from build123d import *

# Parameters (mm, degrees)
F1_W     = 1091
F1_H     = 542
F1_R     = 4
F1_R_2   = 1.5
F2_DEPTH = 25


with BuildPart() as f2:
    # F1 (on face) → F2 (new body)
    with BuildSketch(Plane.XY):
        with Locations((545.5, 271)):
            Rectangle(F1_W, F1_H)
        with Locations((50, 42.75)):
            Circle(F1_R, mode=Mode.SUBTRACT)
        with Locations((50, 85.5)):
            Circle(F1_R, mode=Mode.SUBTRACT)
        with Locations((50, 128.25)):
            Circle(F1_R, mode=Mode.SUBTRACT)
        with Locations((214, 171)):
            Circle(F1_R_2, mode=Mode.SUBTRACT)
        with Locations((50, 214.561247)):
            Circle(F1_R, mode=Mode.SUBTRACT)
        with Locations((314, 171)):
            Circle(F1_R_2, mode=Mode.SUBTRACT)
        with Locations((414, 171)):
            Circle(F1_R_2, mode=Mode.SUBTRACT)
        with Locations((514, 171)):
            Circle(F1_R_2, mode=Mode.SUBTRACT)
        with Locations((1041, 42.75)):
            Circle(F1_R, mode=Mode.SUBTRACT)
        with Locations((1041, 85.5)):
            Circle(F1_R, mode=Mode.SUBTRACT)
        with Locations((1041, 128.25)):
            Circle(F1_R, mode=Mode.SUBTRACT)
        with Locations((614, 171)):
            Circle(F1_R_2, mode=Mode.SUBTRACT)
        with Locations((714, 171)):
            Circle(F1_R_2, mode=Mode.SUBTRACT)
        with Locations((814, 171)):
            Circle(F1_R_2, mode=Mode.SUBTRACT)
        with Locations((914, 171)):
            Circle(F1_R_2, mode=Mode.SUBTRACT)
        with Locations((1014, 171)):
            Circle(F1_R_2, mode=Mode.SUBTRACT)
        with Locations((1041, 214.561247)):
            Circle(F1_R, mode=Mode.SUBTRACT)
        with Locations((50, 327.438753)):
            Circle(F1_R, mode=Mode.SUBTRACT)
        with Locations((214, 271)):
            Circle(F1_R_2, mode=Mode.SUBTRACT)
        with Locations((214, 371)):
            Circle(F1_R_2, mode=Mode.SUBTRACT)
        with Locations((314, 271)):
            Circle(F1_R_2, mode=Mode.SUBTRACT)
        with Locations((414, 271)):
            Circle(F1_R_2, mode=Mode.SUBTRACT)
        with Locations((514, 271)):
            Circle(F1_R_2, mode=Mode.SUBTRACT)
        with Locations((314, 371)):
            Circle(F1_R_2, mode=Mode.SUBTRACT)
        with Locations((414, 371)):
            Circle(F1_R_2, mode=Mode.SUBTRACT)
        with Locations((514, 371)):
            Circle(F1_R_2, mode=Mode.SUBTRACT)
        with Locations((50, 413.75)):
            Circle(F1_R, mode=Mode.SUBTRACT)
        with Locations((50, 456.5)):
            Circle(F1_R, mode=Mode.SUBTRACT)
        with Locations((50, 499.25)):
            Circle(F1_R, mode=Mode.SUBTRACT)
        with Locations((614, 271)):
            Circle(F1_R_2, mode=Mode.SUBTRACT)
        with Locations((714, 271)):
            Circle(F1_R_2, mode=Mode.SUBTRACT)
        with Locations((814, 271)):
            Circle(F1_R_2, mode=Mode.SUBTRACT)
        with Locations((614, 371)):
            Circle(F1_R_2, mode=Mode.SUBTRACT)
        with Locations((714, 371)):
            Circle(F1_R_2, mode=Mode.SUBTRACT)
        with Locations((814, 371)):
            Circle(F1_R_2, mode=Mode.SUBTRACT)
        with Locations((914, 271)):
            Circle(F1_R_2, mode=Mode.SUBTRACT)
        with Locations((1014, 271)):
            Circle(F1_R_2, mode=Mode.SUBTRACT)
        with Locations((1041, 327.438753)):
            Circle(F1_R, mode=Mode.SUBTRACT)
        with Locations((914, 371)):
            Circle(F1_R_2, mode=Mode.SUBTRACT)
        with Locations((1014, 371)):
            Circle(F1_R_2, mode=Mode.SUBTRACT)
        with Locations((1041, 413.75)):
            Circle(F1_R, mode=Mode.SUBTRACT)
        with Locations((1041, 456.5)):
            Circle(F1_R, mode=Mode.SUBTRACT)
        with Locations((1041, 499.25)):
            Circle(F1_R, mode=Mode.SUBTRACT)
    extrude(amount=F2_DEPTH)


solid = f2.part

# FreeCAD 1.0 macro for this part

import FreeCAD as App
import Part
import Sketcher
from FreeCAD import Vector
Q = App.Units.Quantity


def add_polygon(sketch, points):
    """Adds a closed chain of lines whose ends are joined by coincident constraints."""
    first, n = sketch.GeometryCount, len(points)
    for a, b in zip(points, points[1:] + points[:1]):
        sketch.addGeometry(Part.LineSegment(App.Vector(*a, 0), App.Vector(*b, 0)), False)
    for i in range(n):
        sketch.addConstraint(Sketcher.Constraint("Coincident", first + i, 2, first + (i + 1) % n, 1))

doc = App.newDocument("Part")
params = doc.addObject("Spreadsheet::Sheet", "Params")
for row, (alias, value) in enumerate([
    ("sketch1_diameter", "8 mm"),
    ("sketch1_diameter2", "3 mm"),
    ("sketch1_width", "1091 mm"),
    ("sketch1_height", "542 mm"),
    ("pad1_length", "25 mm"),
], start=1):
    params.set(f"A{row}", alias)
    params.set(f"B{row}", "=" + value)
    params.setAlias(f"B{row}", alias)

body = doc.addObject("PartDesign::Body", "Body")

# Sketch on XY plane
sketch1 = doc.addObject("Sketcher::SketchObject", "Sketch")
body.addObject(sketch1)
sketch1.AttachmentSupport = (doc.XY_Plane, [""])
sketch1.MapMode = "FlatFace"
add_polygon(sketch1, [(0, 542), (0, 0), (1091, 0), (1091, 542)])  # lines 0-3
sketch1.addGeometry(Part.Circle(Vector(50, 42.75, 0), Vector(0, 0, 1), 4), False)  # 4
sketch1.addGeometry(Part.Circle(Vector(50, 85.5, 0), Vector(0, 0, 1), 4), False)  # 5
sketch1.addGeometry(Part.Circle(Vector(50, 128.25, 0), Vector(0, 0, 1), 4), False)  # 6
sketch1.addGeometry(Part.Circle(Vector(214, 171, 0), Vector(0, 0, 1), 1.5), False)  # 7
sketch1.addGeometry(Part.Circle(Vector(50, 214.561247, 0), Vector(0, 0, 1), 4), False)  # 8
sketch1.addGeometry(Part.Circle(Vector(214, 271, 0), Vector(0, 0, 1), 1.5), False)  # 9
sketch1.addGeometry(Part.Circle(Vector(314, 171, 0), Vector(0, 0, 1), 1.5), False)  # 10
sketch1.addGeometry(Part.Circle(Vector(414, 171, 0), Vector(0, 0, 1), 1.5), False)  # 11
sketch1.addGeometry(Part.Circle(Vector(514, 171, 0), Vector(0, 0, 1), 1.5), False)  # 12
sketch1.addGeometry(Part.Circle(Vector(314, 271, 0), Vector(0, 0, 1), 1.5), False)  # 13
sketch1.addGeometry(Part.Circle(Vector(414, 271, 0), Vector(0, 0, 1), 1.5), False)  # 14
sketch1.addGeometry(Part.Circle(Vector(514, 271, 0), Vector(0, 0, 1), 1.5), False)  # 15
sketch1.addGeometry(Part.Circle(Vector(1041, 42.75, 0), Vector(0, 0, 1), 4), False)  # 16
sketch1.addGeometry(Part.Circle(Vector(1041, 85.5, 0), Vector(0, 0, 1), 4), False)  # 17
sketch1.addGeometry(Part.Circle(Vector(1041, 128.25, 0), Vector(0, 0, 1), 4), False)  # 18
sketch1.addGeometry(Part.Circle(Vector(614, 171, 0), Vector(0, 0, 1), 1.5), False)  # 19
sketch1.addGeometry(Part.Circle(Vector(714, 171, 0), Vector(0, 0, 1), 1.5), False)  # 20
sketch1.addGeometry(Part.Circle(Vector(614, 271, 0), Vector(0, 0, 1), 1.5), False)  # 21
sketch1.addGeometry(Part.Circle(Vector(714, 271, 0), Vector(0, 0, 1), 1.5), False)  # 22
sketch1.addGeometry(Part.Circle(Vector(814, 171, 0), Vector(0, 0, 1), 1.5), False)  # 23
sketch1.addGeometry(Part.Circle(Vector(914, 171, 0), Vector(0, 0, 1), 1.5), False)  # 24
sketch1.addGeometry(Part.Circle(Vector(1014, 171, 0), Vector(0, 0, 1), 1.5), False)  # 25
sketch1.addGeometry(Part.Circle(Vector(814, 271, 0), Vector(0, 0, 1), 1.5), False)  # 26
sketch1.addGeometry(Part.Circle(Vector(914, 271, 0), Vector(0, 0, 1), 1.5), False)  # 27
sketch1.addGeometry(Part.Circle(Vector(1041, 214.561247, 0), Vector(0, 0, 1), 4), False)  # 28
sketch1.addGeometry(Part.Circle(Vector(1014, 271, 0), Vector(0, 0, 1), 1.5), False)  # 29
sketch1.addGeometry(Part.Circle(Vector(50, 327.438753, 0), Vector(0, 0, 1), 4), False)  # 30
sketch1.addGeometry(Part.Circle(Vector(214, 371, 0), Vector(0, 0, 1), 1.5), False)  # 31
sketch1.addGeometry(Part.Circle(Vector(314, 371, 0), Vector(0, 0, 1), 1.5), False)  # 32
sketch1.addGeometry(Part.Circle(Vector(414, 371, 0), Vector(0, 0, 1), 1.5), False)  # 33
sketch1.addGeometry(Part.Circle(Vector(514, 371, 0), Vector(0, 0, 1), 1.5), False)  # 34
sketch1.addGeometry(Part.Circle(Vector(50, 413.75, 0), Vector(0, 0, 1), 4), False)  # 35
sketch1.addGeometry(Part.Circle(Vector(50, 456.5, 0), Vector(0, 0, 1), 4), False)  # 36
sketch1.addGeometry(Part.Circle(Vector(50, 499.25, 0), Vector(0, 0, 1), 4), False)  # 37
sketch1.addGeometry(Part.Circle(Vector(614, 371, 0), Vector(0, 0, 1), 1.5), False)  # 38
sketch1.addGeometry(Part.Circle(Vector(714, 371, 0), Vector(0, 0, 1), 1.5), False)  # 39
sketch1.addGeometry(Part.Circle(Vector(1041, 327.438753, 0), Vector(0, 0, 1), 4), False)  # 40
sketch1.addGeometry(Part.Circle(Vector(814, 371, 0), Vector(0, 0, 1), 1.5), False)  # 41
sketch1.addGeometry(Part.Circle(Vector(914, 371, 0), Vector(0, 0, 1), 1.5), False)  # 42
sketch1.addGeometry(Part.Circle(Vector(1014, 371, 0), Vector(0, 0, 1), 1.5), False)  # 43
sketch1.addGeometry(Part.Circle(Vector(1041, 413.75, 0), Vector(0, 0, 1), 4), False)  # 44
sketch1.addGeometry(Part.Circle(Vector(1041, 456.5, 0), Vector(0, 0, 1), 4), False)  # 45
sketch1.addGeometry(Part.Circle(Vector(1041, 499.25, 0), Vector(0, 0, 1), 4), False)  # 46
sketch1.addConstraint(Sketcher.Constraint("Vertical", 0))
sketch1.addConstraint(Sketcher.Constraint("Horizontal", 1))
sketch1.addConstraint(Sketcher.Constraint("Vertical", 2))
sketch1.addConstraint(Sketcher.Constraint("Horizontal", 3))
sketch1.addConstraint(Sketcher.Constraint("Coincident", 0, 2, -1, 1))
sketch1.addConstraint(Sketcher.Constraint("Equal", 4, 5))
sketch1.addConstraint(Sketcher.Constraint("Equal", 5, 6))
sketch1.addConstraint(Sketcher.Constraint("Equal", 6, 8))
sketch1.addConstraint(Sketcher.Constraint("Equal", 7, 9))
sketch1.addConstraint(Sketcher.Constraint("Equal", 9, 10))
sketch1.addConstraint(Sketcher.Constraint("Equal", 10, 11))
sketch1.addConstraint(Sketcher.Constraint("Equal", 11, 12))
sketch1.addConstraint(Sketcher.Constraint("Equal", 12, 13))
sketch1.addConstraint(Sketcher.Constraint("Equal", 13, 14))
sketch1.addConstraint(Sketcher.Constraint("Equal", 14, 15))
sketch1.addConstraint(Sketcher.Constraint("Equal", 8, 16))
sketch1.addConstraint(Sketcher.Constraint("Equal", 16, 17))
sketch1.addConstraint(Sketcher.Constraint("Equal", 17, 18))
sketch1.addConstraint(Sketcher.Constraint("Equal", 15, 19))
sketch1.addConstraint(Sketcher.Constraint("Equal", 19, 20))
sketch1.addConstraint(Sketcher.Constraint("Equal", 20, 21))
sketch1.addConstraint(Sketcher.Constraint("Equal", 21, 22))
sketch1.addConstraint(Sketcher.Constraint("Equal", 22, 23))
sketch1.addConstraint(Sketcher.Constraint("Equal", 23, 24))
sketch1.addConstraint(Sketcher.Constraint("Equal", 24, 25))
sketch1.addConstraint(Sketcher.Constraint("Equal", 25, 26))
sketch1.addConstraint(Sketcher.Constraint("Equal", 26, 27))
sketch1.addConstraint(Sketcher.Constraint("Equal", 18, 28))
sketch1.addConstraint(Sketcher.Constraint("Equal", 27, 29))
sketch1.addConstraint(Sketcher.Constraint("Equal", 28, 30))
sketch1.addConstraint(Sketcher.Constraint("Equal", 29, 31))
sketch1.addConstraint(Sketcher.Constraint("Equal", 31, 32))
sketch1.addConstraint(Sketcher.Constraint("Equal", 32, 33))
sketch1.addConstraint(Sketcher.Constraint("Equal", 33, 34))
sketch1.addConstraint(Sketcher.Constraint("Equal", 30, 35))
sketch1.addConstraint(Sketcher.Constraint("Equal", 35, 36))
sketch1.addConstraint(Sketcher.Constraint("Equal", 36, 37))
sketch1.addConstraint(Sketcher.Constraint("Equal", 34, 38))
sketch1.addConstraint(Sketcher.Constraint("Equal", 38, 39))
sketch1.addConstraint(Sketcher.Constraint("Equal", 37, 40))
sketch1.addConstraint(Sketcher.Constraint("Equal", 39, 41))
sketch1.addConstraint(Sketcher.Constraint("Equal", 41, 42))
sketch1.addConstraint(Sketcher.Constraint("Equal", 42, 43))
sketch1.addConstraint(Sketcher.Constraint("Equal", 40, 44))
sketch1.addConstraint(Sketcher.Constraint("Equal", 44, 45))
sketch1.addConstraint(Sketcher.Constraint("Equal", 45, 46))
sketch1.addConstraint(Sketcher.Constraint("Horizontal", 7, 3, 10, 3))
sketch1.addConstraint(Sketcher.Constraint("Horizontal", 10, 3, 11, 3))
sketch1.addConstraint(Sketcher.Constraint("Horizontal", 11, 3, 12, 3))
sketch1.addConstraint(Sketcher.Constraint("Horizontal", 9, 3, 13, 3))
sketch1.addConstraint(Sketcher.Constraint("Horizontal", 13, 3, 14, 3))
sketch1.addConstraint(Sketcher.Constraint("Horizontal", 14, 3, 15, 3))
sketch1.addConstraint(Sketcher.Constraint("Horizontal", 4, 3, 16, 3))
sketch1.addConstraint(Sketcher.Constraint("Horizontal", 5, 3, 17, 3))
sketch1.addConstraint(Sketcher.Constraint("Horizontal", 6, 3, 18, 3))
sketch1.addConstraint(Sketcher.Constraint("Horizontal", 12, 3, 19, 3))
sketch1.addConstraint(Sketcher.Constraint("Horizontal", 19, 3, 20, 3))
sketch1.addConstraint(Sketcher.Constraint("Horizontal", 15, 3, 21, 3))
sketch1.addConstraint(Sketcher.Constraint("Horizontal", 21, 3, 22, 3))
sketch1.addConstraint(Sketcher.Constraint("Horizontal", 20, 3, 23, 3))
sketch1.addConstraint(Sketcher.Constraint("Horizontal", 23, 3, 24, 3))
sketch1.addConstraint(Sketcher.Constraint("Horizontal", 24, 3, 25, 3))
sketch1.addConstraint(Sketcher.Constraint("Horizontal", 22, 3, 26, 3))
sketch1.addConstraint(Sketcher.Constraint("Horizontal", 26, 3, 27, 3))
sketch1.addConstraint(Sketcher.Constraint("Horizontal", 8, 3, 28, 3))
sketch1.addConstraint(Sketcher.Constraint("Horizontal", 27, 3, 29, 3))
sketch1.addConstraint(Sketcher.Constraint("Horizontal", 31, 3, 32, 3))
sketch1.addConstraint(Sketcher.Constraint("Horizontal", 32, 3, 33, 3))
sketch1.addConstraint(Sketcher.Constraint("Horizontal", 33, 3, 34, 3))
sketch1.addConstraint(Sketcher.Constraint("Horizontal", 34, 3, 38, 3))
sketch1.addConstraint(Sketcher.Constraint("Horizontal", 38, 3, 39, 3))
sketch1.addConstraint(Sketcher.Constraint("Horizontal", 30, 3, 40, 3))
sketch1.addConstraint(Sketcher.Constraint("Horizontal", 39, 3, 41, 3))
sketch1.addConstraint(Sketcher.Constraint("Horizontal", 41, 3, 42, 3))
sketch1.addConstraint(Sketcher.Constraint("Horizontal", 42, 3, 43, 3))
sketch1.addConstraint(Sketcher.Constraint("Horizontal", 35, 3, 44, 3))
sketch1.addConstraint(Sketcher.Constraint("Horizontal", 36, 3, 45, 3))
sketch1.addConstraint(Sketcher.Constraint("Horizontal", 37, 3, 46, 3))
sketch1.addConstraint(Sketcher.Constraint("Vertical", 4, 3, 5, 3))
sketch1.addConstraint(Sketcher.Constraint("Vertical", 5, 3, 6, 3))
sketch1.addConstraint(Sketcher.Constraint("Vertical", 6, 3, 8, 3))
sketch1.addConstraint(Sketcher.Constraint("Vertical", 7, 3, 9, 3))
sketch1.addConstraint(Sketcher.Constraint("Vertical", 10, 3, 13, 3))
sketch1.addConstraint(Sketcher.Constraint("Vertical", 11, 3, 14, 3))
sketch1.addConstraint(Sketcher.Constraint("Vertical", 12, 3, 15, 3))
sketch1.addConstraint(Sketcher.Constraint("Vertical", 16, 3, 17, 3))
sketch1.addConstraint(Sketcher.Constraint("Vertical", 17, 3, 18, 3))
sketch1.addConstraint(Sketcher.Constraint("Vertical", 19, 3, 21, 3))
sketch1.addConstraint(Sketcher.Constraint("Vertical", 20, 3, 22, 3))
sketch1.addConstraint(Sketcher.Constraint("Vertical", 23, 3, 26, 3))
sketch1.addConstraint(Sketcher.Constraint("Vertical", 24, 3, 27, 3))
sketch1.addConstraint(Sketcher.Constraint("Vertical", 18, 3, 28, 3))
sketch1.addConstraint(Sketcher.Constraint("Vertical", 25, 3, 29, 3))
sketch1.addConstraint(Sketcher.Constraint("Vertical", 8, 3, 30, 3))
sketch1.addConstraint(Sketcher.Constraint("Vertical", 9, 3, 31, 3))
sketch1.addConstraint(Sketcher.Constraint("Vertical", 13, 3, 32, 3))
sketch1.addConstraint(Sketcher.Constraint("Vertical", 14, 3, 33, 3))
sketch1.addConstraint(Sketcher.Constraint("Vertical", 15, 3, 34, 3))
sketch1.addConstraint(Sketcher.Constraint("Vertical", 30, 3, 35, 3))
sketch1.addConstraint(Sketcher.Constraint("Vertical", 35, 3, 36, 3))
sketch1.addConstraint(Sketcher.Constraint("Vertical", 36, 3, 37, 3))
sketch1.addConstraint(Sketcher.Constraint("Vertical", 21, 3, 38, 3))
sketch1.addConstraint(Sketcher.Constraint("Vertical", 22, 3, 39, 3))
sketch1.addConstraint(Sketcher.Constraint("Vertical", 28, 3, 40, 3))
sketch1.addConstraint(Sketcher.Constraint("Vertical", 26, 3, 41, 3))
sketch1.addConstraint(Sketcher.Constraint("Vertical", 27, 3, 42, 3))
sketch1.addConstraint(Sketcher.Constraint("Vertical", 29, 3, 43, 3))
sketch1.addConstraint(Sketcher.Constraint("Vertical", 40, 3, 44, 3))
sketch1.addConstraint(Sketcher.Constraint("Vertical", 44, 3, 45, 3))
sketch1.addConstraint(Sketcher.Constraint("Vertical", 45, 3, 46, 3))
sketch1.addConstraint(Sketcher.Constraint("Diameter", 4, Q("8 mm")))
sketch1.addConstraint(Sketcher.Constraint("Diameter", 7, Q("3 mm")))
sketch1.addConstraint(Sketcher.Constraint("DistanceX", 1, 1, 1, 2, Q("1091 mm")))
sketch1.addConstraint(Sketcher.Constraint("DistanceY", 0, 2, 0, 1, Q("542 mm")))
sketch1.addConstraint(Sketcher.Constraint("DistanceX", -1, 1, 4, 3, Q("50 mm")))
sketch1.addConstraint(Sketcher.Constraint("DistanceX", -1, 1, 7, 3, Q("214 mm")))
sketch1.addConstraint(Sketcher.Constraint("DistanceY", -1, 1, 7, 3, Q("171 mm")))
sketch1.addConstraint(Sketcher.Constraint("DistanceY", -1, 1, 9, 3, Q("271 mm")))
sketch1.addConstraint(Sketcher.Constraint("DistanceX", -1, 1, 10, 3, Q("314 mm")))
sketch1.addConstraint(Sketcher.Constraint("DistanceX", -1, 1, 11, 3, Q("414 mm")))
sketch1.addConstraint(Sketcher.Constraint("DistanceX", -1, 1, 12, 3, Q("514 mm")))
sketch1.addConstraint(Sketcher.Constraint("DistanceX", -1, 1, 16, 3, Q("1041 mm")))
sketch1.addConstraint(Sketcher.Constraint("DistanceX", -1, 1, 19, 3, Q("614 mm")))
sketch1.addConstraint(Sketcher.Constraint("DistanceX", -1, 1, 20, 3, Q("714 mm")))
sketch1.addConstraint(Sketcher.Constraint("DistanceX", -1, 1, 23, 3, Q("814 mm")))
sketch1.addConstraint(Sketcher.Constraint("DistanceX", -1, 1, 24, 3, Q("914 mm")))
sketch1.addConstraint(Sketcher.Constraint("DistanceX", -1, 1, 25, 3, Q("1014 mm")))
sketch1.addConstraint(Sketcher.Constraint("DistanceY", -1, 1, 31, 3, Q("371 mm")))
sketch1.addConstraint(Sketcher.Constraint("DistanceY", -1, 1, 5, 3, Q("85.5 mm")))
sketch1.addConstraint(Sketcher.Constraint("DistanceY", -1, 1, 36, 3, Q("456.5 mm")))
sketch1.addConstraint(Sketcher.Constraint("DistanceY", 4, 3, 6, 3, Q("85.5 mm")))
sketch1.addConstraint(Sketcher.Constraint("DistanceY", 35, 3, 37, 3, Q("85.5 mm")))
sketch1.addConstraint(Sketcher.Constraint("DistanceY", -1, 1, 4, 3, Q("42.75 mm")))
sketch1.addConstraint(Sketcher.Constraint("DistanceY", -1, 1, 35, 3, Q("413.75 mm")))
sketch1.addConstraint(Sketcher.Constraint("DistanceY", -1, 1, 8, 3, Q("214.561247 mm")))
sketch1.addConstraint(Sketcher.Constraint("DistanceY", -1, 1, 30, 3, Q("327.438753 mm")))
sketch1.setExpression("Constraints[114]", "Params.sketch1_diameter")
sketch1.setExpression("Constraints[115]", "Params.sketch1_diameter2")
sketch1.setExpression("Constraints[116]", "Params.sketch1_width")
sketch1.setExpression("Constraints[117]", "Params.sketch1_height")
pad1 = doc.addObject("PartDesign::Pad", "Pad")
body.addObject(pad1)
pad1.Profile = sketch1
pad1.setExpression("Length", "Params.pad1_length")

doc.recompute()
